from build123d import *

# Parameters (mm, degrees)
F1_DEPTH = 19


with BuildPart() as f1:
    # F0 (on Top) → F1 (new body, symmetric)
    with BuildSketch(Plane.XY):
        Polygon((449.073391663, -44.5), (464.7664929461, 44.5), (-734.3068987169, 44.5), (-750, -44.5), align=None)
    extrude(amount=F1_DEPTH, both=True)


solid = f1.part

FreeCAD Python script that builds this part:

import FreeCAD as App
import Part
import Sketcher
from FreeCAD import Vector
Q = App.Units.Quantity


def add_polygon(sketch, points):
    """Adds a closed chain of lines whose ends are joined by coincident constraints."""
    first, n = sketch.GeometryCount, len(points)
    for a, b in zip(points, points[1:] + points[:1]):
        sketch.addGeometry(Part.LineSegment(App.Vector(*a, 0), App.Vector(*b, 0)), False)
    for i in range(n):
        sketch.addConstraint(Sketcher.Constraint("Coincident", first + i, 2, first + (i + 1) % n, 1))

doc = App.newDocument("Part")
body = doc.addObject("PartDesign::Body", "Body")

sketch1 = body.newObject("Sketcher::SketchObject", "Sketch")
sketch1.AttachmentSupport = (doc.getObject("XY_Plane"), [""])
sketch1.MapMode = "FlatFace"
add_polygon(sketch1, [(449, -44), (465, 44), (-734, 44), (-750, -44)])
sketch1.addConstraint([
    Sketcher.Constraint("Horizontal", 1),
    Sketcher.Constraint("Horizontal", 3),
    Sketcher.Constraint("Parallel", 0, 2),
    Sketcher.Constraint("Angle", 0, Q("80 deg")),
    Sketcher.Constraint("DistanceX", 2, 2, -1, 1, 750.0),
    Sketcher.Constraint("DistanceY", 2, 2, 1, 2, 89.0),
    Sketcher.Constraint("DistanceY", -1, 1, 0, 2, 44.5),
    Sketcher.Constraint("DistanceX", 1, 2, 1, 1, 1199.073392),
])
pad1 = body.newObject("PartDesign::Pad", "Pad")
pad1.Profile = sketch1
pad1.Length = 38
pad1.Midplane = True

doc.recompute()
